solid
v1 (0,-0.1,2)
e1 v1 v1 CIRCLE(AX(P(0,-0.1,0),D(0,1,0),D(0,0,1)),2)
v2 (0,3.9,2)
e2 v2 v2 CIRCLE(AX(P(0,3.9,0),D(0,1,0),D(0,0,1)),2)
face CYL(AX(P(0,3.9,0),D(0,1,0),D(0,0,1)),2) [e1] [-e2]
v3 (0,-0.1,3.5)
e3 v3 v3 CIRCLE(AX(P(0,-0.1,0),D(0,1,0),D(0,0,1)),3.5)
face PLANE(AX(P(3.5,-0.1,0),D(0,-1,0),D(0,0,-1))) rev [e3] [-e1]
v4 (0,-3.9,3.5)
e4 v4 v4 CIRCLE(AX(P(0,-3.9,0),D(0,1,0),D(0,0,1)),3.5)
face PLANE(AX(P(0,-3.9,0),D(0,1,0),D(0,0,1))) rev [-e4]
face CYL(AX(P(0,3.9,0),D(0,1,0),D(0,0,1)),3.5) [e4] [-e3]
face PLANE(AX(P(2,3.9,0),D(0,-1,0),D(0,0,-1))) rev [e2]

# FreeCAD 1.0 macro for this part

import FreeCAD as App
import Part
import Sketcher


def add_polygon(sketch, points):
    """Adds a closed chain of lines whose ends are joined by coincident constraints."""
    first, n = sketch.GeometryCount, len(points)
    for a, b in zip(points, points[1:] + points[:1]):
        sketch.addGeometry(Part.LineSegment(App.Vector(*a, 0), App.Vector(*b, 0)), False)
    for i in range(n):
        sketch.addConstraint(Sketcher.Constraint("Coincident", first + i, 2, first + (i + 1) % n, 1))

doc = App.newDocument("Part")
body = doc.addObject("PartDesign::Body", "Body")

# Sketch on XY plane
sketch1 = doc.addObject("Sketcher::SketchObject", "Sketch")
body.addObject(sketch1)
sketch1.AttachmentSupport = (doc.XY_Plane, [""])
sketch1.MapMode = "FlatFace"
add_polygon(sketch1, [(0, -3.9), (3.5, -3.9), (3.5, -0.1), (2, -0.1), (2, 3.9), (0, 3.9)])  # lines 0-5
sketch1.addConstraint([
    Sketcher.Constraint("Horizontal", 0),
    Sketcher.Constraint("Vertical", 1),
    Sketcher.Constraint("Horizontal", 2),
    Sketcher.Constraint("Vertical", 3),
    Sketcher.Constraint("Horizontal", 4),
    Sketcher.Constraint("Vertical", 5),
    Sketcher.Constraint("Symmetric", 4, 2, 5, 2, -1, 1),
    Sketcher.Constraint("DistanceX", 4, 2, 4, 1, 2.0),
    Sketcher.Constraint("DistanceY", 3, 1, 3, 2, 4.0),
    Sketcher.Constraint("DistanceX", 0, 1, 0, 2, 3.5),
    Sketcher.Constraint("DistanceY", 1, 1, 1, 2, 3.8),
])
revolution = doc.addObject("PartDesign::Revolution", "Revolution")
body.addObject(revolution)
revolution.Profile = sketch1
revolution.ReferenceAxis = (sketch1, ["V_Axis"])
revolution.Angle = 360

doc.recompute()
